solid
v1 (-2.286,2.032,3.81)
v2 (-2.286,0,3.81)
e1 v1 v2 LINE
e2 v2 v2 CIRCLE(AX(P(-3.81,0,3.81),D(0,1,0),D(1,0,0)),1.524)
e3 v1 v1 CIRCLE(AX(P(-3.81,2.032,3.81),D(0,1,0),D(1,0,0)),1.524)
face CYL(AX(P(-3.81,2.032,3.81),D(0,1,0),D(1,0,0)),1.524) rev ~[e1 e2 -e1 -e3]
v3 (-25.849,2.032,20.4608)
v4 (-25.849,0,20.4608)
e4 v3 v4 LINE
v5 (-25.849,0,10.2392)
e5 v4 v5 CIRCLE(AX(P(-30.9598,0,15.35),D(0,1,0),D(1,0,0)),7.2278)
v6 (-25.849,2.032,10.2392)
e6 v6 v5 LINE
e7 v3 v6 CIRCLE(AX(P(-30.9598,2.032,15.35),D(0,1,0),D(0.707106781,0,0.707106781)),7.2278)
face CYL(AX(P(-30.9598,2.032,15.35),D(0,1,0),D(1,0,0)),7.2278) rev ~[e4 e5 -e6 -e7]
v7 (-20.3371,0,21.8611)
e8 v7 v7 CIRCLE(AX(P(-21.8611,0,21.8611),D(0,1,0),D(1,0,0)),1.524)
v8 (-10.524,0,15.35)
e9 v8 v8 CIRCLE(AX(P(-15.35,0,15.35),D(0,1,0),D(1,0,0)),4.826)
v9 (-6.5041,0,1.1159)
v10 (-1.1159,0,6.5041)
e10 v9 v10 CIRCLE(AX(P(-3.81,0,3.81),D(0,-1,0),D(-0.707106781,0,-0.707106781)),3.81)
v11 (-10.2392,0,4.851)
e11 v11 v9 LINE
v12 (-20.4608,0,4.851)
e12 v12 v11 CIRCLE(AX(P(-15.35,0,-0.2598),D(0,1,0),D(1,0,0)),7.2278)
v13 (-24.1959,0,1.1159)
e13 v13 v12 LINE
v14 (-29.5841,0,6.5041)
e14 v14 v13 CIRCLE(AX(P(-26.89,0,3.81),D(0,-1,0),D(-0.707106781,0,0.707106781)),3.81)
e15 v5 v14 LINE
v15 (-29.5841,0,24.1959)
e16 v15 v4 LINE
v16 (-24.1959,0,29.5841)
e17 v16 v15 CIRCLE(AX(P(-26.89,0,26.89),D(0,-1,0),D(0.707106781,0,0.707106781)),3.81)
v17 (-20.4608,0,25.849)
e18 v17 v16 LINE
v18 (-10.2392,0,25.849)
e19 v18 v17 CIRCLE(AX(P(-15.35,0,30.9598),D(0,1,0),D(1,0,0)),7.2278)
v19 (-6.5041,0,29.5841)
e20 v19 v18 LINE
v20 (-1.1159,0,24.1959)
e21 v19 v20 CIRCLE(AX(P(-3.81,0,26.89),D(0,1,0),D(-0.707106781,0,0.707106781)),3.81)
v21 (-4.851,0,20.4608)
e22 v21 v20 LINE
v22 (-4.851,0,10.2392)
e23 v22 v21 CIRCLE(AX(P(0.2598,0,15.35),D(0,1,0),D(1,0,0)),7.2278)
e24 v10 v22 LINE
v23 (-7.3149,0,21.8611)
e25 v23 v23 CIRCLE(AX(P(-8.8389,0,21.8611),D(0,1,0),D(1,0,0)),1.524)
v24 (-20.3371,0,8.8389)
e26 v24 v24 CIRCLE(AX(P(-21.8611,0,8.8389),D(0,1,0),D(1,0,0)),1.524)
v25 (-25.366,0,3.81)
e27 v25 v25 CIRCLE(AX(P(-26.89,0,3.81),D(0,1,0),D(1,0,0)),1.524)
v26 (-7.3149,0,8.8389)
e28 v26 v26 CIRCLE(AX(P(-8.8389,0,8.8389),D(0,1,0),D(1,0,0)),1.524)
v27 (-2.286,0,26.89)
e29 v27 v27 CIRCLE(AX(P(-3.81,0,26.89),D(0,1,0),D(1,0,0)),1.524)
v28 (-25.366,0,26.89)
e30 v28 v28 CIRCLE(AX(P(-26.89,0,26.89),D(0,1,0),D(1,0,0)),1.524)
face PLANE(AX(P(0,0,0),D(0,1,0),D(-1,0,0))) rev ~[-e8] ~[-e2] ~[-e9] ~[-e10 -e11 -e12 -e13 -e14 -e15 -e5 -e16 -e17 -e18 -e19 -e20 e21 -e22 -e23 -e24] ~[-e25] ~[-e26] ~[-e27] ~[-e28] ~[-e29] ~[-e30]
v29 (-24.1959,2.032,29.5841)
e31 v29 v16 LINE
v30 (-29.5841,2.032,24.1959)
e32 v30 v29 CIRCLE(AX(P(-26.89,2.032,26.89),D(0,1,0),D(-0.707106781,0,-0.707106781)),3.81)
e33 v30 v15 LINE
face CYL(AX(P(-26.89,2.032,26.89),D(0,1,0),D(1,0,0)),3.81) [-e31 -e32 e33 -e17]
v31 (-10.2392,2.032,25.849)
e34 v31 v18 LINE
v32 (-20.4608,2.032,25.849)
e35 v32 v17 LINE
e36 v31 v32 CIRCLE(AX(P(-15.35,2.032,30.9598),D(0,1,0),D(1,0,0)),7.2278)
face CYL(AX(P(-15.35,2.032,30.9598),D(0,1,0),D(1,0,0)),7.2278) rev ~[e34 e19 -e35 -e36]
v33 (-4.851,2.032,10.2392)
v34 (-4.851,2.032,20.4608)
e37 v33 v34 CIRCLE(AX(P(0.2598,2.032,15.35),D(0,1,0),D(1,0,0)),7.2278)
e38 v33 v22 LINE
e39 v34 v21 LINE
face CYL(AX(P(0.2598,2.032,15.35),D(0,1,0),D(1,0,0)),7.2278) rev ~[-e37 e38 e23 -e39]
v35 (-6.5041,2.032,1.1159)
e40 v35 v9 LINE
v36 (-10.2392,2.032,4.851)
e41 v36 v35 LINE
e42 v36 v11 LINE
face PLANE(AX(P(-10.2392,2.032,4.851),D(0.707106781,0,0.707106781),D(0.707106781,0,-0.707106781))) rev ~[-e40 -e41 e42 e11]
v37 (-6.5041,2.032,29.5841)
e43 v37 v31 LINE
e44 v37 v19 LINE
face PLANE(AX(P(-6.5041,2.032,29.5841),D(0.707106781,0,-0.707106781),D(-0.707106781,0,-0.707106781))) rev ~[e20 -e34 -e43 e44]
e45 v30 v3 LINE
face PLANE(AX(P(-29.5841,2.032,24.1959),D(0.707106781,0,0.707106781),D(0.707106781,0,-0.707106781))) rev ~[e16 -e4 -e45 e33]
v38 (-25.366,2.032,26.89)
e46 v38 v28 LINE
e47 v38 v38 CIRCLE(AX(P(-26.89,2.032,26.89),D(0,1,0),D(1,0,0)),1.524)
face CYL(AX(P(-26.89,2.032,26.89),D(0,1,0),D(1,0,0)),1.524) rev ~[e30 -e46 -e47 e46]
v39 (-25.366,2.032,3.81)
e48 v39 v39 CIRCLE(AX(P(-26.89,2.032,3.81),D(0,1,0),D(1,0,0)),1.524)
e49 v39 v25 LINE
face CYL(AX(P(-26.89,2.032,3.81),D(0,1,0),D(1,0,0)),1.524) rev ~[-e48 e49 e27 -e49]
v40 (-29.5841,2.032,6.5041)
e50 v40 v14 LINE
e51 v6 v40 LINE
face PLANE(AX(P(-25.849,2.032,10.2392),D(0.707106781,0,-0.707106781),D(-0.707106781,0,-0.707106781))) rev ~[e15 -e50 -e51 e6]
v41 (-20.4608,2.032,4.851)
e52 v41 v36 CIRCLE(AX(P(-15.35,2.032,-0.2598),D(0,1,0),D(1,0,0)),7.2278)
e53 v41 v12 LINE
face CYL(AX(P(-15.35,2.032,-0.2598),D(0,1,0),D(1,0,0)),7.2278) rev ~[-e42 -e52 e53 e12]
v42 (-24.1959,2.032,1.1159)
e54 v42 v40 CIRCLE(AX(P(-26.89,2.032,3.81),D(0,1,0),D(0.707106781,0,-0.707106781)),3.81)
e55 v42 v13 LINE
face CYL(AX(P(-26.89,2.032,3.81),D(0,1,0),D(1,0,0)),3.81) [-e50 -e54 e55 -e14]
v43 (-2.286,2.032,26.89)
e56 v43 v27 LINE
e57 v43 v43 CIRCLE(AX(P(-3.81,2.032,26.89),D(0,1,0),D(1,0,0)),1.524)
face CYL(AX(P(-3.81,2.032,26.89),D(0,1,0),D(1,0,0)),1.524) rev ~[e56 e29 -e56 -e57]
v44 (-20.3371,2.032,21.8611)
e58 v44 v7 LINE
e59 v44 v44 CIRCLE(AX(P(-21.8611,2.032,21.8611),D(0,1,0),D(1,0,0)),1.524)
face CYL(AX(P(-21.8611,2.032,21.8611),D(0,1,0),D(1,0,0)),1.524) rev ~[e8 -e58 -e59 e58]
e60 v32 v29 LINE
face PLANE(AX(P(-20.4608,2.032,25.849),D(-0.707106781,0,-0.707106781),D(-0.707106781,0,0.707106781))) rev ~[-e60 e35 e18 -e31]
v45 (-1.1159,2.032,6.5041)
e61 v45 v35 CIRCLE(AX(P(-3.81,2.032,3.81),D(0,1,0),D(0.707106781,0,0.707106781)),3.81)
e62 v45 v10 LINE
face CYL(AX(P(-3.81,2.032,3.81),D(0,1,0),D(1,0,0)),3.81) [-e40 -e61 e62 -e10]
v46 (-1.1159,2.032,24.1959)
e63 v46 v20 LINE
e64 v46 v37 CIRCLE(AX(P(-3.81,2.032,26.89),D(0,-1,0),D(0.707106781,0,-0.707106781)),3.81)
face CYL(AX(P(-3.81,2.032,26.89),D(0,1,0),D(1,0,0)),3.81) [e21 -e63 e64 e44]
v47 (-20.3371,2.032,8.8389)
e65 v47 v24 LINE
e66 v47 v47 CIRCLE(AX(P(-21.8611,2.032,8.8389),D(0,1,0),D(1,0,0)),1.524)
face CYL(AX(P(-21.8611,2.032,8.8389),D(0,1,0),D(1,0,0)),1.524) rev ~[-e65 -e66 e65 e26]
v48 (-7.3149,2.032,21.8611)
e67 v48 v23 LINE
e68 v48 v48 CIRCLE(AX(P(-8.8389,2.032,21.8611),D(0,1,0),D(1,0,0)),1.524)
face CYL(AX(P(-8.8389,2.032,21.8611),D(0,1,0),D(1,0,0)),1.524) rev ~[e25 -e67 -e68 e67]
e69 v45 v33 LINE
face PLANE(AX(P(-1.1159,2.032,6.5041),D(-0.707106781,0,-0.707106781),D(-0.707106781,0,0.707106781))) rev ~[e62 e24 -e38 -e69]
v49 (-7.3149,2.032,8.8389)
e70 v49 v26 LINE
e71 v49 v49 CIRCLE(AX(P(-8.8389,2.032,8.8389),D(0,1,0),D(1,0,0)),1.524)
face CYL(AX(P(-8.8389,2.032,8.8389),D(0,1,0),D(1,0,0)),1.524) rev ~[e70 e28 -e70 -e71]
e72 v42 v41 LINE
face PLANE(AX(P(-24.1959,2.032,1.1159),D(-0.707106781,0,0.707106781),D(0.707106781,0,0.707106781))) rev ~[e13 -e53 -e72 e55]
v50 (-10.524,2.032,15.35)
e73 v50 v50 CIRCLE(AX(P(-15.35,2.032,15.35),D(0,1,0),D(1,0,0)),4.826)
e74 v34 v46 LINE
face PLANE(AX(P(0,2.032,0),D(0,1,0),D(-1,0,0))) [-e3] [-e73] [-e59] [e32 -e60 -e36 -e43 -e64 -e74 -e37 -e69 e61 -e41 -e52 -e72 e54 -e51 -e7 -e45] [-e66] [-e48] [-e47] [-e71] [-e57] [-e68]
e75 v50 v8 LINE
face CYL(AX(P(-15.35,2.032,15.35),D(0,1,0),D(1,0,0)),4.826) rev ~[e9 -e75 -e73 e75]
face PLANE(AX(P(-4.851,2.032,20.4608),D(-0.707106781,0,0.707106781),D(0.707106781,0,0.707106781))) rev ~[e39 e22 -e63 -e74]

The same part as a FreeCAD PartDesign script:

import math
import FreeCAD as App
import Part
import Sketcher
from FreeCAD import Vector
Q = App.Units.Quantity


def add_polygon(sketch, points):
    """Adds a closed chain of lines whose ends are joined by coincident constraints."""
    first, n = sketch.GeometryCount, len(points)
    for a, b in zip(points, points[1:] + points[:1]):
        sketch.addGeometry(Part.LineSegment(App.Vector(*a, 0), App.Vector(*b, 0)), False)
    for i in range(n):
        sketch.addConstraint(Sketcher.Constraint("Coincident", first + i, 2, first + (i + 1) % n, 1))

doc = App.newDocument("Part")
body = doc.addObject("PartDesign::Body", "Body")

sketch1 = body.newObject("Sketcher::SketchObject", "Sketch")
sketch1.AttachmentSupport = (doc.getObject("XZ_Plane"), [""])
sketch1.MapMode = "FlatFace"
add_polygon(sketch1, [(0, 30.7), (0, 0), (-30.7, 0), (-30.7, 30.7)])
sketch1.addConstraint([
    Sketcher.Constraint("Vertical", 0),
    Sketcher.Constraint("Horizontal", 1),
    Sketcher.Constraint("Vertical", 2),
    Sketcher.Constraint("Horizontal", 3),
    Sketcher.Constraint("Coincident", 0, 2, -1, 1),
    Sketcher.Constraint("Equal", 3, 0),
    Sketcher.Constraint("DistanceX", 1, 2, 1, 1, 30.7),
])
pad1 = body.newObject("PartDesign::Pad", "Pad")
pad1.Profile = sketch1
pad1.Length = Q("0.08 in")
pad1.Reversed = True

sketch2 = body.newObject("Sketcher::SketchObject", "Sketch001")
sketch2.AttachmentSupport = (doc.getObject("XZ_Plane"), [""])
sketch2.MapMode = "FlatFace"
sketch2.AttachmentOffset = App.Placement(Vector(0, 0, -0.08 * 25.4), App.Rotation())
sketch2.addGeometry([
    Part.ArcOfCircle(Part.Circle(Vector(-26.89, 26.89, 0), Vector(0, 0, 1), 3.81), math.radians(180), math.radians(225)),
    Part.LineSegment(Vector(-29.5841, 24.1959, 0), Vector(-25.849, 20.4608, 0)),
    Part.ArcOfCircle(Part.Circle(Vector(-30.9598, 15.35, 0), Vector(0, 0, 1), 7.2278), math.radians(-45), math.radians(45)),
    Part.LineSegment(Vector(-25.849, 10.2392, 0), Vector(-29.5841, 6.5041, 0)),
    Part.ArcOfCircle(Part.Circle(Vector(-26.89, 3.81, 0), Vector(0, 0, 1), 3.81), math.radians(135), math.radians(180)),
    Part.LineSegment(Vector(-30.7, 3.81, 0), Vector(-30.7, 26.89, 0)),
    Part.LineSegment(Vector(-20.4608, 25.849, 0), Vector(-24.1959, 29.5841, 0)),
    Part.ArcOfCircle(Part.Circle(Vector(-26.89, 26.89, 0), Vector(0, 0, 1), 3.81), math.radians(45), math.radians(90)),
    Part.LineSegment(Vector(-26.89, 30.7, 0), Vector(-3.81, 30.7, 0)),
    Part.ArcOfCircle(Part.Circle(Vector(-3.81, 26.89, 0), Vector(0, 0, 1), 3.81), math.radians(90), math.radians(135)),
    Part.LineSegment(Vector(-6.5041, 29.5841, 0), Vector(-10.2392, 25.849, 0)),
    Part.ArcOfCircle(Part.Circle(Vector(-15.35, 30.9598, 0), Vector(0, 0, 1), 7.2278), math.radians(-135), math.radians(-45)),
    Part.ArcOfCircle(Part.Circle(Vector(-26.89, 26.89, 0), Vector(0, 0, 1), 3.81), math.radians(90), math.radians(180)),
    Part.LineSegment(Vector(-30.7, 26.89, 0), Vector(-30.7, 30.7, 0)),
    Part.LineSegment(Vector(-30.7, 30.7, 0), Vector(-26.89, 30.7, 0)),
    Part.LineSegment(Vector(-30.7, 0, 0), Vector(-30.7, 3.81, 0)),
    Part.ArcOfCircle(Part.Circle(Vector(-26.89, 3.81, 0), Vector(0, 0, 1), 3.81), math.radians(180), math.radians(270)),
    Part.LineSegment(Vector(-26.89, 0, 0), Vector(-30.7, 0, 0)),
    Part.ArcOfCircle(Part.Circle(Vector(-3.81, 26.89, 0), Vector(0, 0, 1), 3.81), math.radians(0), math.radians(90)),
    Part.LineSegment(Vector(-3.81, 30.7, 0), Vector(0, 30.7, 0)),
    Part.LineSegment(Vector(0, 30.7, 0), Vector(0, 26.89, 0)),
    Part.LineSegment(Vector(-4.851, 20.4608, 0), Vector(-1.1159, 24.1959, 0)),
    Part.ArcOfCircle(Part.Circle(Vector(-3.81, 26.89, 0), Vector(0, 0, 1), 3.81), math.radians(-45), math.radians(0)),
    Part.LineSegment(Vector(0, 26.89, 0), Vector(0, 3.81, 0)),
    Part.ArcOfCircle(Part.Circle(Vector(-3.81, 3.81, 0), Vector(0, 0, 1), 3.81), math.radians(0), math.radians(45)),
    Part.LineSegment(Vector(-1.1159, 6.5041, 0), Vector(-4.851, 10.2392, 0)),
    Part.ArcOfCircle(Part.Circle(Vector(0.2598, 15.35, 0), Vector(0, 0, 1), 7.2278), math.radians(135), math.radians(225)),
    Part.ArcOfCircle(Part.Circle(Vector(-26.89, 3.81, 0), Vector(0, 0, 1), 3.81), math.radians(-90), math.radians(-45)),
    Part.LineSegment(Vector(-24.1959, 1.1159, 0), Vector(-20.4608, 4.851, 0)),
    Part.ArcOfCircle(Part.Circle(Vector(-15.35, -0.2598, 0), Vector(0, 0, 1), 7.2278), math.radians(45), math.radians(135)),
    Part.LineSegment(Vector(-10.2392, 4.851, 0), Vector(-6.5041, 1.1159, 0)),
    Part.ArcOfCircle(Part.Circle(Vector(-3.81, 3.81, 0), Vector(0, 0, 1), 3.81), math.radians(-135), math.radians(-90)),
    Part.LineSegment(Vector(-3.81, 0, 0), Vector(-26.89, 0, 0)),
    Part.LineSegment(Vector(0, 0, 0), Vector(-3.81, 0, 0)),
    Part.ArcOfCircle(Part.Circle(Vector(-3.81, 3.81, 0), Vector(0, 0, 1), 3.81), math.radians(-90), math.radians(0)),
    Part.LineSegment(Vector(0, 3.81, 0), Vector(0, 0, 0)),
], False)
sketch2.addConstraint([
    Sketcher.Constraint("Tangent", 0, 2, 1, 1),
    Sketcher.Constraint("Tangent", 1, 2, 2, 2),
    Sketcher.Constraint("Tangent", 2, 1, 3, 1),
    Sketcher.Constraint("Tangent", 3, 2, 4, 1),
    Sketcher.Constraint("Tangent", 4, 2, 5, 1),
    Sketcher.Constraint("Tangent", 5, 2, 0, 1),
    Sketcher.Constraint("Tangent", 6, 2, 7, 1),
    Sketcher.Constraint("Tangent", 7, 2, 8, 1),
    Sketcher.Constraint("Tangent", 8, 2, 9, 1),
    Sketcher.Constraint("Tangent", 9, 2, 10, 1),
    Sketcher.Constraint("Tangent", 10, 2, 11, 2),
    Sketcher.Constraint("Tangent", 11, 1, 6, 1),
    Sketcher.Constraint("Tangent", 12, 2, 13, 1),
    Sketcher.Constraint("Coincident", 13, 2, 14, 1),
    Sketcher.Constraint("Tangent", 14, 2, 12, 1),
    Sketcher.Constraint("Tangent", 15, 2, 16, 1),
    Sketcher.Constraint("Tangent", 16, 2, 17, 1),
    Sketcher.Constraint("Coincident", 17, 2, 15, 1),
    Sketcher.Constraint("Tangent", 18, 2, 19, 1),
    Sketcher.Constraint("Coincident", 19, 2, 20, 1),
    Sketcher.Constraint("Tangent", 20, 2, 18, 1),
    Sketcher.Constraint("Tangent", 21, 2, 22, 1),
    Sketcher.Constraint("Tangent", 22, 2, 23, 1),
    Sketcher.Constraint("Tangent", 23, 2, 24, 1),
    Sketcher.Constraint("Tangent", 24, 2, 25, 1),
    Sketcher.Constraint("Tangent", 25, 2, 26, 2),
    Sketcher.Constraint("Tangent", 26, 1, 21, 1),
    Sketcher.Constraint("Tangent", 27, 2, 28, 1),
    Sketcher.Constraint("Tangent", 28, 2, 29, 2),
    Sketcher.Constraint("Tangent", 29, 1, 30, 1),
    Sketcher.Constraint("Tangent", 30, 2, 31, 1),
    Sketcher.Constraint("Tangent", 31, 2, 32, 1),
    Sketcher.Constraint("Tangent", 32, 2, 27, 1),
    Sketcher.Constraint("Tangent", 33, 2, 34, 1),
    Sketcher.Constraint("Tangent", 34, 2, 35, 1),
    Sketcher.Constraint("Coincident", 35, 2, 33, 1),
    Sketcher.Constraint("Vertical", 5),
    Sketcher.Constraint("Horizontal", 8),
    Sketcher.Constraint("Vertical", 13),
    Sketcher.Constraint("Horizontal", 14),
    Sketcher.Constraint("Vertical", 15),
    Sketcher.Constraint("Horizontal", 17),
    Sketcher.Constraint("Horizontal", 19),
    Sketcher.Constraint("Vertical", 20),
    Sketcher.Constraint("Vertical", 23),
    Sketcher.Constraint("Horizontal", 32),
    Sketcher.Constraint("Horizontal", 33),
    Sketcher.Constraint("Vertical", 35),
    Sketcher.Constraint("Coincident", 35, 2, -1, 1),
    Sketcher.Constraint("Coincident", 7, 3, 0, 3),
    Sketcher.Constraint("Coincident", 12, 3, 0, 3),
    Sketcher.Constraint("Coincident", 16, 3, 4, 3),
    Sketcher.Constraint("Coincident", 18, 3, 9, 3),
    Sketcher.Constraint("Coincident", 22, 3, 9, 3),
    Sketcher.Constraint("Coincident", 27, 3, 4, 3),
    Sketcher.Constraint("Coincident", 31, 3, 24, 3),
    Sketcher.Constraint("Coincident", 34, 3, 24, 3),
    Sketcher.Constraint("Equal", 0, 4),
    Sketcher.Constraint("Equal", 4, 7),
    Sketcher.Constraint("Equal", 7, 9),
    Sketcher.Constraint("Equal", 2, 11),
    Sketcher.Constraint("Equal", 9, 12),
    Sketcher.Constraint("Equal", 12, 16),
    Sketcher.Constraint("Equal", 16, 18),
    Sketcher.Constraint("Equal", 18, 22),
    Sketcher.Constraint("Equal", 22, 24),
    Sketcher.Constraint("Equal", 11, 26),
    Sketcher.Constraint("Equal", 24, 27),
    Sketcher.Constraint("Equal", 26, 29),
    Sketcher.Constraint("Equal", 27, 31),
    Sketcher.Constraint("Equal", 31, 34),
    Sketcher.Constraint("Perpendicular", 1, 3),
    Sketcher.Constraint("Perpendicular", 3, 6),
    Sketcher.Constraint("Perpendicular", 6, 10),
    Sketcher.Constraint("Parallel", 10, 21),
    Sketcher.Constraint("Perpendicular", 21, 25),
    Sketcher.Constraint("Perpendicular", 25, 28),
    Sketcher.Constraint("Perpendicular", 28, 30),
    Sketcher.Constraint("Horizontal", 2, 3, 26, 3),
    Sketcher.Constraint("Equal", 32, 5),
    Sketcher.Constraint("Radius", 0, Q("0.15 in")),
    Sketcher.Constraint("Radius", 2, 7.2278),
    Sketcher.Constraint("DistanceX", 8, 1, 8, 2, 23.08),
])
pocket1 = body.newObject("PartDesign::Pocket", "Pocket")
pocket1.Profile = sketch2
pocket1.Type = "ThroughAll"
pocket1.Reversed = True

sketch3 = body.newObject("Sketcher::SketchObject", "Sketch002")
sketch3.AttachmentSupport = (doc.getObject("XZ_Plane"), [""])
sketch3.MapMode = "FlatFace"
sketch3.AttachmentOffset = App.Placement(Vector(0, 0, -0.08 * 25.4), App.Rotation())
sketch3.addGeometry([
    Part.Circle(Vector(-26.89, 26.89, 0), Vector(0, 0, 1), 1.524),
    Part.Circle(Vector(-21.8611, 21.8611, 0), Vector(0, 0, 1), 1.524),
    Part.Circle(Vector(-15.35, 15.35, 0), Vector(0, 0, 1), 4.826),
    Part.Circle(Vector(-3.81, 26.89, 0), Vector(0, 0, 1), 1.524),
    Part.Circle(Vector(-8.8389, 21.8611, 0), Vector(0, 0, 1), 1.524),
    Part.Circle(Vector(-3.81, 3.81, 0), Vector(0, 0, 1), 1.524),
    Part.Circle(Vector(-8.8389, 8.8389, 0), Vector(0, 0, 1), 1.524),
    Part.Circle(Vector(-26.89, 3.81, 0), Vector(0, 0, 1), 1.524),
    Part.Circle(Vector(-21.8611, 8.8389, 0), Vector(0, 0, 1), 1.524),
], False)
sketch3.addConstraint([
    Sketcher.Constraint("Equal", 0, 1),
    Sketcher.Constraint("Equal", 1, 3),
    Sketcher.Constraint("Equal", 3, 4),
    Sketcher.Constraint("Equal", 4, 5),
    Sketcher.Constraint("Equal", 5, 6),
    Sketcher.Constraint("Equal", 6, 7),
    Sketcher.Constraint("Equal", 7, 8),
    Sketcher.Constraint("Horizontal", 0, 3, 3, 3),
    Sketcher.Constraint("Horizontal", 1, 3, 4, 3),
    Sketcher.Constraint("Horizontal", 5, 3, 7, 3),
    Sketcher.Constraint("Horizontal", 6, 3, 8, 3),
    Sketcher.Constraint("Vertical", 3, 3, 5, 3),
    Sketcher.Constraint("Vertical", 4, 3, 6, 3),
    Sketcher.Constraint("Vertical", 0, 3, 7, 3),
    Sketcher.Constraint("Vertical", 1, 3, 8, 3),
    Sketcher.Constraint("Diameter", 0, Q("0.12 in")),
    Sketcher.Constraint("Diameter", 2, Q("0.38 in")),
    Sketcher.Constraint("DistanceX", 3, 3, -1, 1, Q("0.15 in")),
    Sketcher.Constraint("DistanceY", -1, 1, 5, 3, Q("0.15 in")),
    Sketcher.Constraint("DistanceX", 4, 3, -1, 1, Q("0.348 in")),
    Sketcher.Constraint("DistanceY", -1, 1, 6, 3, Q("0.348 in")),
    Sketcher.Constraint("DistanceX", 0, 3, 1, 3, Q("0.198 in")),
    Sketcher.Constraint("DistanceY", 1, 3, 0, 3, Q("0.198 in")),
    Sketcher.Constraint("DistanceX", 0, 3, -1, 1, 26.89),
    Sketcher.Constraint("DistanceY", -1, 1, 0, 3, 26.89),
    Sketcher.Constraint("DistanceX", 2, 3, -1, 1, 15.35),
    Sketcher.Constraint("DistanceY", -1, 1, 2, 3, 15.35),
])
pocket2 = body.newObject("PartDesign::Pocket", "Pocket001")
pocket2.Profile = sketch3
pocket2.Type = "ThroughAll"
pocket2.Reversed = True

doc.recompute()
